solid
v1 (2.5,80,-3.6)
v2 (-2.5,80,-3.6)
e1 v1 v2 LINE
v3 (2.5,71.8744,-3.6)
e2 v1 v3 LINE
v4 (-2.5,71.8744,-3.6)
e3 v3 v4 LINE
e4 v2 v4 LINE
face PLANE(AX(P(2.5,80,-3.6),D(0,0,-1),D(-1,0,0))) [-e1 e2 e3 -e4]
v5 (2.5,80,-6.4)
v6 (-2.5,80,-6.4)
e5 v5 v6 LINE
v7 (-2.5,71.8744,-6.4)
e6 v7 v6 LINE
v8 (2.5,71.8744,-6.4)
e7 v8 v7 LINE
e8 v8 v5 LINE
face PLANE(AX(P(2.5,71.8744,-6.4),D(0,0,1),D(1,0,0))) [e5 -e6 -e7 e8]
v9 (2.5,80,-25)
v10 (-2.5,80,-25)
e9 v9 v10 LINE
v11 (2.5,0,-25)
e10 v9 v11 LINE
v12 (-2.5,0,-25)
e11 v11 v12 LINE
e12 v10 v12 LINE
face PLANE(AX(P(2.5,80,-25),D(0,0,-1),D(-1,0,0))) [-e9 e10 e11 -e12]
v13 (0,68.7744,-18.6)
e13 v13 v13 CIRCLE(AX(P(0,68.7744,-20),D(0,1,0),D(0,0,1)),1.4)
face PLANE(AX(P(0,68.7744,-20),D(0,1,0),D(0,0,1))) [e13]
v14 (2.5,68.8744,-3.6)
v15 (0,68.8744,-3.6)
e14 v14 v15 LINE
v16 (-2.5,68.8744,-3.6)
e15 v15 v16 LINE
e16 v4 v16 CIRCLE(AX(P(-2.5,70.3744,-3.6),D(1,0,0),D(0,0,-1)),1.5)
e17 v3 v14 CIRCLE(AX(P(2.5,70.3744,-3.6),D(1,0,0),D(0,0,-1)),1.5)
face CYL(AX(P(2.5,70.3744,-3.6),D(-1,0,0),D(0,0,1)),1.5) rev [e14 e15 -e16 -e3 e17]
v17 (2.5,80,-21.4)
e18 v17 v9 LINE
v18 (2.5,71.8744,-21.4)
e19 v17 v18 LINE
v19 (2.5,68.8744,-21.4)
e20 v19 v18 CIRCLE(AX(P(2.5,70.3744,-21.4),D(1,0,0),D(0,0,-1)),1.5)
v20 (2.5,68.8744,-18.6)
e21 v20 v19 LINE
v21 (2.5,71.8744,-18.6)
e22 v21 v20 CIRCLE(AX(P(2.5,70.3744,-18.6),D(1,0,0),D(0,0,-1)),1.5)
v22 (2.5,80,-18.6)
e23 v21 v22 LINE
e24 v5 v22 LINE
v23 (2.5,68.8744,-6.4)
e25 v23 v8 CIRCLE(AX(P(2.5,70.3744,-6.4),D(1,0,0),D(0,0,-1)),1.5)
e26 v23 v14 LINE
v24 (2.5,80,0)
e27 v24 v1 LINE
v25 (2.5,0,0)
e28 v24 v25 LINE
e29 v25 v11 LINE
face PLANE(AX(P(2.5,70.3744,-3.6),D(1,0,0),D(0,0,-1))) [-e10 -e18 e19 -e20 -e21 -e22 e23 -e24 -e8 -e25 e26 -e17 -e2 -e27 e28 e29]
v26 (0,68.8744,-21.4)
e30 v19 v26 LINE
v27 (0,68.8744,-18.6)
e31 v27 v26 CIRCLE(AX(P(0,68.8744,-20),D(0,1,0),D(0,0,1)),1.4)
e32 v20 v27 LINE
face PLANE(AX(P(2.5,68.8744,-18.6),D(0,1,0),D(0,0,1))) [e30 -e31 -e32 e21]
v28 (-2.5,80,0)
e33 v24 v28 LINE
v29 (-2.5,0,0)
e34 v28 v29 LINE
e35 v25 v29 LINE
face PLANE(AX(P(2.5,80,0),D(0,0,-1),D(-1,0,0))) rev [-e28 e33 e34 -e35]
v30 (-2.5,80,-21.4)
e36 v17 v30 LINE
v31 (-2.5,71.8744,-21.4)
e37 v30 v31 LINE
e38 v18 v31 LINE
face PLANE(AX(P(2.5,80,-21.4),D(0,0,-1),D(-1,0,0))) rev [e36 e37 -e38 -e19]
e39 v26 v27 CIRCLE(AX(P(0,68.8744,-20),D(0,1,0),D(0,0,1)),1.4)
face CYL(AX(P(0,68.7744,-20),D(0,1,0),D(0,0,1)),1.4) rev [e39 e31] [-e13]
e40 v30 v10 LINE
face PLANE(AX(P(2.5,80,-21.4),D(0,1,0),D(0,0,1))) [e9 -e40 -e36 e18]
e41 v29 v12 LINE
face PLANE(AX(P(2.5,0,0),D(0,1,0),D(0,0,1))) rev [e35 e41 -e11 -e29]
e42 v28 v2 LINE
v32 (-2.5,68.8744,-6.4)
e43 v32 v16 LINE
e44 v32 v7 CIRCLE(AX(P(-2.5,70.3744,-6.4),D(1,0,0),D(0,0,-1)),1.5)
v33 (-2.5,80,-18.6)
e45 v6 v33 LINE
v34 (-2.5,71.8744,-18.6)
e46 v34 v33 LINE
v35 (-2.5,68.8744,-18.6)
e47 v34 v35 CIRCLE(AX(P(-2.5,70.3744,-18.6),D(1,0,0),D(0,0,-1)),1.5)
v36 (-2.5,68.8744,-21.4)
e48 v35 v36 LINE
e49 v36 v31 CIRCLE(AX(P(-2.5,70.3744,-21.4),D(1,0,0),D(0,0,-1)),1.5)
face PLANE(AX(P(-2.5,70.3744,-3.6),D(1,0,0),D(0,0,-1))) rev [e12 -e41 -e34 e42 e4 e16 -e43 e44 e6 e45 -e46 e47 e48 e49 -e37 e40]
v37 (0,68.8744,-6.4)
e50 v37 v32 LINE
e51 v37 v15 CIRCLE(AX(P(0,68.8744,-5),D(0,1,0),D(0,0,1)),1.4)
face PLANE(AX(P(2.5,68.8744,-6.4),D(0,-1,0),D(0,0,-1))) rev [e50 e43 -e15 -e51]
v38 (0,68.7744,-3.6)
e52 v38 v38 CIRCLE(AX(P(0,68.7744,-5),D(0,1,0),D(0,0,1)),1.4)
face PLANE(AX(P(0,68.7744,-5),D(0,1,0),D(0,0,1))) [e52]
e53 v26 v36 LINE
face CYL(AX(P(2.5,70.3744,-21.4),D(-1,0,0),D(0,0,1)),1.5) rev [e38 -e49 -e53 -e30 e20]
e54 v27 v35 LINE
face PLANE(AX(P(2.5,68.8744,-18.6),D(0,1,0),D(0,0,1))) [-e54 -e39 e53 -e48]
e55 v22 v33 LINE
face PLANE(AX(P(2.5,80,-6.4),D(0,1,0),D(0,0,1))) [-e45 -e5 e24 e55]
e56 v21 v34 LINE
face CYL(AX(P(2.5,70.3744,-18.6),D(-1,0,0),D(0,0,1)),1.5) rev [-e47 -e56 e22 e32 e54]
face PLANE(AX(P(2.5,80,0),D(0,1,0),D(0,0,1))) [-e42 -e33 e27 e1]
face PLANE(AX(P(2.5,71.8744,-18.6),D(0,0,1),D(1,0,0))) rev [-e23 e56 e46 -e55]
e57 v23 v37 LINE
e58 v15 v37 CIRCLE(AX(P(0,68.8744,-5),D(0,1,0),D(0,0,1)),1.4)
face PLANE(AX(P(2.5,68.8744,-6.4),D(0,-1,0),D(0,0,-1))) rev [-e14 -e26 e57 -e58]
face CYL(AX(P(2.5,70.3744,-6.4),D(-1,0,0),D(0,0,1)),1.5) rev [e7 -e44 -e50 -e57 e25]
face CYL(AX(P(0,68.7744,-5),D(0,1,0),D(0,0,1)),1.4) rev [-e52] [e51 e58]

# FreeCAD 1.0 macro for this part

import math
import FreeCAD as App
import Part
import Sketcher
Q = App.Units.Quantity

doc = App.newDocument("Part")
body = doc.addObject("PartDesign::Body", "Body")

# Sketch on YZ plane
sketch1 = body.newObject("Sketcher::SketchObject", "Sketch")
sketch1.AttachmentSupport = (doc.getObject("YZ_Plane"), [""])
sketch1.MapMode = "FlatFace"
sketch1.addGeometry(Part.LineSegment(App.Vector(80, -18.6, 0), App.Vector(80, -6.4, 0)), False)
sketch1.addGeometry(Part.LineSegment(App.Vector(80, -6.4, 0), App.Vector(71.9, -6.4, 0)), False)
sketch1.addGeometry(Part.ArcOfCircle(Part.Circle(App.Vector(70.4, -6.4, 0), App.Vector(0, 0, 1), 1.5), math.radians(180), math.radians(360)), False)
sketch1.addGeometry(Part.LineSegment(App.Vector(68.9, -6.4, 0), App.Vector(68.9, -3.6, 0)), False)
sketch1.addGeometry(Part.ArcOfCircle(Part.Circle(App.Vector(70.4, -3.6, 0), App.Vector(0, 0, 1), 1.5), math.radians(0), math.radians(180)), False)
sketch1.addGeometry(Part.LineSegment(App.Vector(71.9, -3.6, 0), App.Vector(80, -3.6, 0)), False)
sketch1.addGeometry(Part.LineSegment(App.Vector(80, -3.6, 0), App.Vector(80, 0, 0)), False)
sketch1.addGeometry(Part.LineSegment(App.Vector(80, 0, 0), App.Vector(0, 0, 0)), False)
sketch1.addGeometry(Part.LineSegment(App.Vector(0, 0, 0), App.Vector(0, -25, 0)), False)
sketch1.addGeometry(Part.LineSegment(App.Vector(0, -25, 0), App.Vector(80, -25, 0)), False)
sketch1.addGeometry(Part.LineSegment(App.Vector(80, -25, 0), App.Vector(80, -21.4, 0)), False)
sketch1.addGeometry(Part.LineSegment(App.Vector(80, -21.4, 0), App.Vector(71.9, -21.4, 0)), False)
sketch1.addGeometry(Part.ArcOfCircle(Part.Circle(App.Vector(70.4, -21.4, 0), App.Vector(0, 0, 1), 1.5), math.radians(180), math.radians(360)), False)
sketch1.addGeometry(Part.LineSegment(App.Vector(68.9, -21.4, 0), App.Vector(68.9, -18.6, 0)), False)
sketch1.addGeometry(Part.ArcOfCircle(Part.Circle(App.Vector(70.4, -18.6, 0), App.Vector(0, 0, 1), 1.5), math.radians(0), math.radians(180)), False)
sketch1.addGeometry(Part.LineSegment(App.Vector(71.9, -18.6, 0), App.Vector(80, -18.6, 0)), False)
sketch1.addConstraint(Sketcher.Constraint("Coincident", 0, 2, 1, 1))
sketch1.addConstraint(Sketcher.Constraint("Coincident", 1, 2, 2, 2))
sketch1.addConstraint(Sketcher.Constraint("Tangent", 2, 1, 3, 1))
sketch1.addConstraint(Sketcher.Constraint("Tangent", 3, 2, 4, 2))
sketch1.addConstraint(Sketcher.Constraint("Coincident", 4, 1, 5, 1))
sketch1.addConstraint(Sketcher.Constraint("Coincident", 5, 2, 6, 1))
sketch1.addConstraint(Sketcher.Constraint("Coincident", 6, 2, 7, 1))
sketch1.addConstraint(Sketcher.Constraint("Coincident", 7, 2, 8, 1))
sketch1.addConstraint(Sketcher.Constraint("Coincident", 8, 2, 9, 1))
sketch1.addConstraint(Sketcher.Constraint("Coincident", 9, 2, 10, 1))
sketch1.addConstraint(Sketcher.Constraint("Coincident", 10, 2, 11, 1))
sketch1.addConstraint(Sketcher.Constraint("Coincident", 11, 2, 12, 2))
sketch1.addConstraint(Sketcher.Constraint("Tangent", 12, 1, 13, 1))
sketch1.addConstraint(Sketcher.Constraint("Tangent", 13, 2, 14, 2))
sketch1.addConstraint(Sketcher.Constraint("Coincident", 14, 1, 15, 1))
sketch1.addConstraint(Sketcher.Constraint("Coincident", 15, 2, 0, 1))
sketch1.addConstraint(Sketcher.Constraint("Vertical", 0))
sketch1.addConstraint(Sketcher.Constraint("Horizontal", 1))
sketch1.addConstraint(Sketcher.Constraint("Vertical", 3))
sketch1.addConstraint(Sketcher.Constraint("Horizontal", 5))
sketch1.addConstraint(Sketcher.Constraint("Vertical", 6))
sketch1.addConstraint(Sketcher.Constraint("Horizontal", 7))
sketch1.addConstraint(Sketcher.Constraint("Vertical", 8))
sketch1.addConstraint(Sketcher.Constraint("Horizontal", 9))
sketch1.addConstraint(Sketcher.Constraint("Vertical", 10))
sketch1.addConstraint(Sketcher.Constraint("Horizontal", 11))
sketch1.addConstraint(Sketcher.Constraint("Vertical", 13))
sketch1.addConstraint(Sketcher.Constraint("Horizontal", 15))
sketch1.addConstraint(Sketcher.Constraint("Coincident", 7, 2, -1, 1))
sketch1.addConstraint(Sketcher.Constraint("Equal", 2, 4))
sketch1.addConstraint(Sketcher.Constraint("Equal", 4, 12))
sketch1.addConstraint(Sketcher.Constraint("Equal", 12, 14))
sketch1.addConstraint(Sketcher.Constraint("Horizontal", 2, 3, 0, 2))
sketch1.addConstraint(Sketcher.Constraint("Horizontal", 3, 2, 4, 1))
sketch1.addConstraint(Sketcher.Constraint("Horizontal", 12, 3, 10, 2))
sketch1.addConstraint(Sketcher.Constraint("Horizontal", 13, 2, 14, 1))
sketch1.addConstraint(Sketcher.Constraint("Vertical", 4, 3, 12, 3))
sketch1.addConstraint(Sketcher.Constraint("Vertical", 0, 2, 5, 2))
sketch1.addConstraint(Sketcher.Constraint("Vertical", 6, 2, 9, 2))
sketch1.addConstraint(Sketcher.Constraint("Equal", 6, 10))
sketch1.addConstraint(Sketcher.Constraint("Equal", 3, 13))
sketch1.addConstraint(Sketcher.Constraint("Radius", 2, Q("1.5 mm")))
sketch1.addConstraint(Sketcher.Constraint("DistanceX", 7, 2, 7, 1, Q("80 mm")))
sketch1.addConstraint(Sketcher.Constraint("DistanceY", 8, 2, 8, 1, Q("25 mm")))
sketch1.addConstraint(Sketcher.Constraint("DistanceY", 0, 1, 0, 2, Q("12.2 mm")))
sketch1.addConstraint(Sketcher.Constraint("DistanceY", 3, 1, 3, 2, Q("2.8 mm")))
sketch1.addConstraint(Sketcher.Constraint("DistanceX", 1, 2, 1, 1, Q("8.1256 mm")))
pad1 = body.newObject("PartDesign::Pad", "Pad")
pad1.Profile = sketch1
pad1.Length = 5
pad1.Midplane = True

# Sketch on XZ plane
sketch2 = body.newObject("Sketcher::SketchObject", "Sketch001")
sketch2.AttachmentSupport = (doc.getObject("XZ_Plane"), [""])
sketch2.MapMode = "FlatFace"
sketch2.AttachmentOffset = App.Placement(App.Vector(0, 0, -68.8744), App.Rotation())
sketch2.addGeometry(Part.Circle(App.Vector(0, -20, 0), App.Vector(0, 0, 1), 1.4), False)
sketch2.addGeometry(Part.Circle(App.Vector(0, -5, 0), App.Vector(0, 0, 1), 1.4), False)
sketch2.addConstraint(Sketcher.Constraint("Equal", 0, 1))
sketch2.addConstraint(Sketcher.Constraint("PointOnObject", 0, 3, -2))
sketch2.addConstraint(Sketcher.Constraint("PointOnObject", 1, 3, -2))
sketch2.addConstraint(Sketcher.Constraint("Diameter", 0, Q("2.8 mm")))
sketch2.addConstraint(Sketcher.Constraint("DistanceY", 0, 3, -1, 1, Q("20 mm")))
sketch2.addConstraint(Sketcher.Constraint("DistanceY", 1, 3, -1, 1, Q("5 mm")))
pocket1 = body.newObject("PartDesign::Pocket", "Pocket")
pocket1.Profile = sketch2
pocket1.Length = 0.1
pocket1.Reversed = True

doc.recompute()
